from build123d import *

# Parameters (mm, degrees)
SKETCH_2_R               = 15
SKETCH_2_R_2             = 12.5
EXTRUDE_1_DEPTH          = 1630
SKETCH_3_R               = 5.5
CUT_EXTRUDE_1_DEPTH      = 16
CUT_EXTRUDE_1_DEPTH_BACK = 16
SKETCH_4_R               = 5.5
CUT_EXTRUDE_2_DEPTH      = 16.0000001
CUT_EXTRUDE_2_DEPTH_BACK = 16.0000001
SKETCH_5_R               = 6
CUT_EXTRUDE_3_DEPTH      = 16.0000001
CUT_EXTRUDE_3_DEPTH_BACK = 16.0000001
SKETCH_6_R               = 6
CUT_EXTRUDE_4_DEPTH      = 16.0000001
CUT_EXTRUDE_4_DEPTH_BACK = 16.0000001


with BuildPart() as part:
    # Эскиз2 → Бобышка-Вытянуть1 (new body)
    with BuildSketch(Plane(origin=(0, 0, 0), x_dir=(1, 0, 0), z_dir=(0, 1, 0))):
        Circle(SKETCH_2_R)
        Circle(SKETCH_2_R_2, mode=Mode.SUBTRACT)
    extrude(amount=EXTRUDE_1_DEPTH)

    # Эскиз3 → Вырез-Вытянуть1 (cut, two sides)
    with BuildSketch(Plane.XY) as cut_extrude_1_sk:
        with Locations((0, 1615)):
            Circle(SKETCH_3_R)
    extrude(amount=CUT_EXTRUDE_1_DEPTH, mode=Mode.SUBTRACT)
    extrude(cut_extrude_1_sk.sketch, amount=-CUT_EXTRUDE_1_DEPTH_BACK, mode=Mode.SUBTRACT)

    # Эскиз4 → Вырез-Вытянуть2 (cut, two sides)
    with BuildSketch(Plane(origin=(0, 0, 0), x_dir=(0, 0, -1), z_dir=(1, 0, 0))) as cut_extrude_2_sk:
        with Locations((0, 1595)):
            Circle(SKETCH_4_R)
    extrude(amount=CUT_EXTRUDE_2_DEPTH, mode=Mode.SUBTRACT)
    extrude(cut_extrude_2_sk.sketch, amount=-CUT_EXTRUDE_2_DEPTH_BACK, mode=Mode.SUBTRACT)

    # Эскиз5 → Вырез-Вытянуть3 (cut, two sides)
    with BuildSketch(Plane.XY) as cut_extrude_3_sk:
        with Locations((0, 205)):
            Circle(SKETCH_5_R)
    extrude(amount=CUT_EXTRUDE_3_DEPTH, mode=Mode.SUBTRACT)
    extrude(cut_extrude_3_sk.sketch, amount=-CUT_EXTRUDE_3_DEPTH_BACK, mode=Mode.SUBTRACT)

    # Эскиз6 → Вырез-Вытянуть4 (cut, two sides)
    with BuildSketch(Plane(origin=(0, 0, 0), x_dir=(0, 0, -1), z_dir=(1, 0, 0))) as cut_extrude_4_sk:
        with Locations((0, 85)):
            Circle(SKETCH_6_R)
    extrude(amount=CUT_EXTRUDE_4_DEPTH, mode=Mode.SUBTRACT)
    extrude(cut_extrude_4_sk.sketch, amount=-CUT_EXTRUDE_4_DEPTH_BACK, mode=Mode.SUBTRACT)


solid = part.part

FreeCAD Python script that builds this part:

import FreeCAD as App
import Part
import Sketcher

doc = App.newDocument("Part")
body = doc.addObject("PartDesign::Body", "Body")

# Sketch on XZ plane
sketch1 = doc.addObject("Sketcher::SketchObject", "Sketch")
body.addObject(sketch1)
sketch1.AttachmentSupport = (doc.XZ_Plane, [""])
sketch1.MapMode = "FlatFace"
sketch1.addGeometry([
    Part.Circle(App.Vector(0, 0, 0), App.Vector(0, 0, 1), 15),
    Part.Circle(App.Vector(0, 0, 0), App.Vector(0, 0, 1), 12),
], False)
sketch1.addConstraint([
    Sketcher.Constraint("Coincident", 0, 3, -1, 1),
    Sketcher.Constraint("Coincident", 1, 3, -1, 1),
    Sketcher.Constraint("Diameter", 0, 30.0),
    Sketcher.Constraint("Diameter", 1, 25.0),
])
pad1 = doc.addObject("PartDesign::Pad", "Pad")
body.addObject(pad1)
pad1.Profile = sketch1
pad1.Length = 1630
pad1.Reversed = True

# Sketch on XY plane
sketch2 = doc.addObject("Sketcher::SketchObject", "Sketch001")
body.addObject(sketch2)
sketch2.AttachmentSupport = (doc.XY_Plane, [""])
sketch2.MapMode = "FlatFace"
sketch2.addGeometry(Part.Circle(App.Vector(0, 1615, 0), App.Vector(0, 0, 1), 6), False)
sketch2.addConstraint([
    Sketcher.Constraint("PointOnObject", 0, 3, -2),
    Sketcher.Constraint("Diameter", 0, 11.0),
    Sketcher.Constraint("DistanceY", -1, 1, 0, 3, 1615.0),
])
pocket1 = doc.addObject("PartDesign::Pocket", "Pocket")
body.addObject(pocket1)
pocket1.Profile = sketch2
pocket1.Type = "ThroughAll"
pocket1.Midplane = True

# Sketch on YZ plane
sketch3 = doc.addObject("Sketcher::SketchObject", "Sketch002")
body.addObject(sketch3)
sketch3.AttachmentSupport = (doc.YZ_Plane, [""])
sketch3.MapMode = "FlatFace"
sketch3.addGeometry(Part.Circle(App.Vector(1595, 0, 0), App.Vector(0, 0, 1), 6), False)
sketch3.addConstraint([
    Sketcher.Constraint("PointOnObject", 0, 3, -1),
    Sketcher.Constraint("Diameter", 0, 11.0),
    Sketcher.Constraint("DistanceX", -1, 1, 0, 3, 1595.0),
])
pocket2 = doc.addObject("PartDesign::Pocket", "Pocket001")
body.addObject(pocket2)
pocket2.Profile = sketch3
pocket2.Type = "ThroughAll"
pocket2.Midplane = True

# Sketch on XY plane
sketch4 = doc.addObject("Sketcher::SketchObject", "Sketch003")
body.addObject(sketch4)
sketch4.AttachmentSupport = (doc.XY_Plane, [""])
sketch4.MapMode = "FlatFace"
sketch4.addGeometry(Part.Circle(App.Vector(0, 205, 0), App.Vector(0, 0, 1), 6), False)
sketch4.addConstraint([
    Sketcher.Constraint("PointOnObject", 0, 3, -2),
    Sketcher.Constraint("Diameter", 0, 12.0),
    Sketcher.Constraint("DistanceY", -1, 1, 0, 3, 205.0),
])
pocket3 = doc.addObject("PartDesign::Pocket", "Pocket002")
body.addObject(pocket3)
pocket3.Profile = sketch4
pocket3.Type = "ThroughAll"
pocket3.Midplane = True

# Sketch on YZ plane
sketch5 = doc.addObject("Sketcher::SketchObject", "Sketch004")
body.addObject(sketch5)
sketch5.AttachmentSupport = (doc.YZ_Plane, [""])
sketch5.MapMode = "FlatFace"
sketch5.addGeometry(Part.Circle(App.Vector(85, 0, 0), App.Vector(0, 0, 1), 6), False)
sketch5.addConstraint([
    Sketcher.Constraint("PointOnObject", 0, 3, -1),
    Sketcher.Constraint("Diameter", 0, 12.0),
    Sketcher.Constraint("DistanceX", -1, 1, 0, 3, 85.0),
])
pocket4 = doc.addObject("PartDesign::Pocket", "Pocket003")
body.addObject(pocket4)
pocket4.Profile = sketch5
pocket4.Type = "ThroughAll"
pocket4.Midplane = True

doc.recompute()
